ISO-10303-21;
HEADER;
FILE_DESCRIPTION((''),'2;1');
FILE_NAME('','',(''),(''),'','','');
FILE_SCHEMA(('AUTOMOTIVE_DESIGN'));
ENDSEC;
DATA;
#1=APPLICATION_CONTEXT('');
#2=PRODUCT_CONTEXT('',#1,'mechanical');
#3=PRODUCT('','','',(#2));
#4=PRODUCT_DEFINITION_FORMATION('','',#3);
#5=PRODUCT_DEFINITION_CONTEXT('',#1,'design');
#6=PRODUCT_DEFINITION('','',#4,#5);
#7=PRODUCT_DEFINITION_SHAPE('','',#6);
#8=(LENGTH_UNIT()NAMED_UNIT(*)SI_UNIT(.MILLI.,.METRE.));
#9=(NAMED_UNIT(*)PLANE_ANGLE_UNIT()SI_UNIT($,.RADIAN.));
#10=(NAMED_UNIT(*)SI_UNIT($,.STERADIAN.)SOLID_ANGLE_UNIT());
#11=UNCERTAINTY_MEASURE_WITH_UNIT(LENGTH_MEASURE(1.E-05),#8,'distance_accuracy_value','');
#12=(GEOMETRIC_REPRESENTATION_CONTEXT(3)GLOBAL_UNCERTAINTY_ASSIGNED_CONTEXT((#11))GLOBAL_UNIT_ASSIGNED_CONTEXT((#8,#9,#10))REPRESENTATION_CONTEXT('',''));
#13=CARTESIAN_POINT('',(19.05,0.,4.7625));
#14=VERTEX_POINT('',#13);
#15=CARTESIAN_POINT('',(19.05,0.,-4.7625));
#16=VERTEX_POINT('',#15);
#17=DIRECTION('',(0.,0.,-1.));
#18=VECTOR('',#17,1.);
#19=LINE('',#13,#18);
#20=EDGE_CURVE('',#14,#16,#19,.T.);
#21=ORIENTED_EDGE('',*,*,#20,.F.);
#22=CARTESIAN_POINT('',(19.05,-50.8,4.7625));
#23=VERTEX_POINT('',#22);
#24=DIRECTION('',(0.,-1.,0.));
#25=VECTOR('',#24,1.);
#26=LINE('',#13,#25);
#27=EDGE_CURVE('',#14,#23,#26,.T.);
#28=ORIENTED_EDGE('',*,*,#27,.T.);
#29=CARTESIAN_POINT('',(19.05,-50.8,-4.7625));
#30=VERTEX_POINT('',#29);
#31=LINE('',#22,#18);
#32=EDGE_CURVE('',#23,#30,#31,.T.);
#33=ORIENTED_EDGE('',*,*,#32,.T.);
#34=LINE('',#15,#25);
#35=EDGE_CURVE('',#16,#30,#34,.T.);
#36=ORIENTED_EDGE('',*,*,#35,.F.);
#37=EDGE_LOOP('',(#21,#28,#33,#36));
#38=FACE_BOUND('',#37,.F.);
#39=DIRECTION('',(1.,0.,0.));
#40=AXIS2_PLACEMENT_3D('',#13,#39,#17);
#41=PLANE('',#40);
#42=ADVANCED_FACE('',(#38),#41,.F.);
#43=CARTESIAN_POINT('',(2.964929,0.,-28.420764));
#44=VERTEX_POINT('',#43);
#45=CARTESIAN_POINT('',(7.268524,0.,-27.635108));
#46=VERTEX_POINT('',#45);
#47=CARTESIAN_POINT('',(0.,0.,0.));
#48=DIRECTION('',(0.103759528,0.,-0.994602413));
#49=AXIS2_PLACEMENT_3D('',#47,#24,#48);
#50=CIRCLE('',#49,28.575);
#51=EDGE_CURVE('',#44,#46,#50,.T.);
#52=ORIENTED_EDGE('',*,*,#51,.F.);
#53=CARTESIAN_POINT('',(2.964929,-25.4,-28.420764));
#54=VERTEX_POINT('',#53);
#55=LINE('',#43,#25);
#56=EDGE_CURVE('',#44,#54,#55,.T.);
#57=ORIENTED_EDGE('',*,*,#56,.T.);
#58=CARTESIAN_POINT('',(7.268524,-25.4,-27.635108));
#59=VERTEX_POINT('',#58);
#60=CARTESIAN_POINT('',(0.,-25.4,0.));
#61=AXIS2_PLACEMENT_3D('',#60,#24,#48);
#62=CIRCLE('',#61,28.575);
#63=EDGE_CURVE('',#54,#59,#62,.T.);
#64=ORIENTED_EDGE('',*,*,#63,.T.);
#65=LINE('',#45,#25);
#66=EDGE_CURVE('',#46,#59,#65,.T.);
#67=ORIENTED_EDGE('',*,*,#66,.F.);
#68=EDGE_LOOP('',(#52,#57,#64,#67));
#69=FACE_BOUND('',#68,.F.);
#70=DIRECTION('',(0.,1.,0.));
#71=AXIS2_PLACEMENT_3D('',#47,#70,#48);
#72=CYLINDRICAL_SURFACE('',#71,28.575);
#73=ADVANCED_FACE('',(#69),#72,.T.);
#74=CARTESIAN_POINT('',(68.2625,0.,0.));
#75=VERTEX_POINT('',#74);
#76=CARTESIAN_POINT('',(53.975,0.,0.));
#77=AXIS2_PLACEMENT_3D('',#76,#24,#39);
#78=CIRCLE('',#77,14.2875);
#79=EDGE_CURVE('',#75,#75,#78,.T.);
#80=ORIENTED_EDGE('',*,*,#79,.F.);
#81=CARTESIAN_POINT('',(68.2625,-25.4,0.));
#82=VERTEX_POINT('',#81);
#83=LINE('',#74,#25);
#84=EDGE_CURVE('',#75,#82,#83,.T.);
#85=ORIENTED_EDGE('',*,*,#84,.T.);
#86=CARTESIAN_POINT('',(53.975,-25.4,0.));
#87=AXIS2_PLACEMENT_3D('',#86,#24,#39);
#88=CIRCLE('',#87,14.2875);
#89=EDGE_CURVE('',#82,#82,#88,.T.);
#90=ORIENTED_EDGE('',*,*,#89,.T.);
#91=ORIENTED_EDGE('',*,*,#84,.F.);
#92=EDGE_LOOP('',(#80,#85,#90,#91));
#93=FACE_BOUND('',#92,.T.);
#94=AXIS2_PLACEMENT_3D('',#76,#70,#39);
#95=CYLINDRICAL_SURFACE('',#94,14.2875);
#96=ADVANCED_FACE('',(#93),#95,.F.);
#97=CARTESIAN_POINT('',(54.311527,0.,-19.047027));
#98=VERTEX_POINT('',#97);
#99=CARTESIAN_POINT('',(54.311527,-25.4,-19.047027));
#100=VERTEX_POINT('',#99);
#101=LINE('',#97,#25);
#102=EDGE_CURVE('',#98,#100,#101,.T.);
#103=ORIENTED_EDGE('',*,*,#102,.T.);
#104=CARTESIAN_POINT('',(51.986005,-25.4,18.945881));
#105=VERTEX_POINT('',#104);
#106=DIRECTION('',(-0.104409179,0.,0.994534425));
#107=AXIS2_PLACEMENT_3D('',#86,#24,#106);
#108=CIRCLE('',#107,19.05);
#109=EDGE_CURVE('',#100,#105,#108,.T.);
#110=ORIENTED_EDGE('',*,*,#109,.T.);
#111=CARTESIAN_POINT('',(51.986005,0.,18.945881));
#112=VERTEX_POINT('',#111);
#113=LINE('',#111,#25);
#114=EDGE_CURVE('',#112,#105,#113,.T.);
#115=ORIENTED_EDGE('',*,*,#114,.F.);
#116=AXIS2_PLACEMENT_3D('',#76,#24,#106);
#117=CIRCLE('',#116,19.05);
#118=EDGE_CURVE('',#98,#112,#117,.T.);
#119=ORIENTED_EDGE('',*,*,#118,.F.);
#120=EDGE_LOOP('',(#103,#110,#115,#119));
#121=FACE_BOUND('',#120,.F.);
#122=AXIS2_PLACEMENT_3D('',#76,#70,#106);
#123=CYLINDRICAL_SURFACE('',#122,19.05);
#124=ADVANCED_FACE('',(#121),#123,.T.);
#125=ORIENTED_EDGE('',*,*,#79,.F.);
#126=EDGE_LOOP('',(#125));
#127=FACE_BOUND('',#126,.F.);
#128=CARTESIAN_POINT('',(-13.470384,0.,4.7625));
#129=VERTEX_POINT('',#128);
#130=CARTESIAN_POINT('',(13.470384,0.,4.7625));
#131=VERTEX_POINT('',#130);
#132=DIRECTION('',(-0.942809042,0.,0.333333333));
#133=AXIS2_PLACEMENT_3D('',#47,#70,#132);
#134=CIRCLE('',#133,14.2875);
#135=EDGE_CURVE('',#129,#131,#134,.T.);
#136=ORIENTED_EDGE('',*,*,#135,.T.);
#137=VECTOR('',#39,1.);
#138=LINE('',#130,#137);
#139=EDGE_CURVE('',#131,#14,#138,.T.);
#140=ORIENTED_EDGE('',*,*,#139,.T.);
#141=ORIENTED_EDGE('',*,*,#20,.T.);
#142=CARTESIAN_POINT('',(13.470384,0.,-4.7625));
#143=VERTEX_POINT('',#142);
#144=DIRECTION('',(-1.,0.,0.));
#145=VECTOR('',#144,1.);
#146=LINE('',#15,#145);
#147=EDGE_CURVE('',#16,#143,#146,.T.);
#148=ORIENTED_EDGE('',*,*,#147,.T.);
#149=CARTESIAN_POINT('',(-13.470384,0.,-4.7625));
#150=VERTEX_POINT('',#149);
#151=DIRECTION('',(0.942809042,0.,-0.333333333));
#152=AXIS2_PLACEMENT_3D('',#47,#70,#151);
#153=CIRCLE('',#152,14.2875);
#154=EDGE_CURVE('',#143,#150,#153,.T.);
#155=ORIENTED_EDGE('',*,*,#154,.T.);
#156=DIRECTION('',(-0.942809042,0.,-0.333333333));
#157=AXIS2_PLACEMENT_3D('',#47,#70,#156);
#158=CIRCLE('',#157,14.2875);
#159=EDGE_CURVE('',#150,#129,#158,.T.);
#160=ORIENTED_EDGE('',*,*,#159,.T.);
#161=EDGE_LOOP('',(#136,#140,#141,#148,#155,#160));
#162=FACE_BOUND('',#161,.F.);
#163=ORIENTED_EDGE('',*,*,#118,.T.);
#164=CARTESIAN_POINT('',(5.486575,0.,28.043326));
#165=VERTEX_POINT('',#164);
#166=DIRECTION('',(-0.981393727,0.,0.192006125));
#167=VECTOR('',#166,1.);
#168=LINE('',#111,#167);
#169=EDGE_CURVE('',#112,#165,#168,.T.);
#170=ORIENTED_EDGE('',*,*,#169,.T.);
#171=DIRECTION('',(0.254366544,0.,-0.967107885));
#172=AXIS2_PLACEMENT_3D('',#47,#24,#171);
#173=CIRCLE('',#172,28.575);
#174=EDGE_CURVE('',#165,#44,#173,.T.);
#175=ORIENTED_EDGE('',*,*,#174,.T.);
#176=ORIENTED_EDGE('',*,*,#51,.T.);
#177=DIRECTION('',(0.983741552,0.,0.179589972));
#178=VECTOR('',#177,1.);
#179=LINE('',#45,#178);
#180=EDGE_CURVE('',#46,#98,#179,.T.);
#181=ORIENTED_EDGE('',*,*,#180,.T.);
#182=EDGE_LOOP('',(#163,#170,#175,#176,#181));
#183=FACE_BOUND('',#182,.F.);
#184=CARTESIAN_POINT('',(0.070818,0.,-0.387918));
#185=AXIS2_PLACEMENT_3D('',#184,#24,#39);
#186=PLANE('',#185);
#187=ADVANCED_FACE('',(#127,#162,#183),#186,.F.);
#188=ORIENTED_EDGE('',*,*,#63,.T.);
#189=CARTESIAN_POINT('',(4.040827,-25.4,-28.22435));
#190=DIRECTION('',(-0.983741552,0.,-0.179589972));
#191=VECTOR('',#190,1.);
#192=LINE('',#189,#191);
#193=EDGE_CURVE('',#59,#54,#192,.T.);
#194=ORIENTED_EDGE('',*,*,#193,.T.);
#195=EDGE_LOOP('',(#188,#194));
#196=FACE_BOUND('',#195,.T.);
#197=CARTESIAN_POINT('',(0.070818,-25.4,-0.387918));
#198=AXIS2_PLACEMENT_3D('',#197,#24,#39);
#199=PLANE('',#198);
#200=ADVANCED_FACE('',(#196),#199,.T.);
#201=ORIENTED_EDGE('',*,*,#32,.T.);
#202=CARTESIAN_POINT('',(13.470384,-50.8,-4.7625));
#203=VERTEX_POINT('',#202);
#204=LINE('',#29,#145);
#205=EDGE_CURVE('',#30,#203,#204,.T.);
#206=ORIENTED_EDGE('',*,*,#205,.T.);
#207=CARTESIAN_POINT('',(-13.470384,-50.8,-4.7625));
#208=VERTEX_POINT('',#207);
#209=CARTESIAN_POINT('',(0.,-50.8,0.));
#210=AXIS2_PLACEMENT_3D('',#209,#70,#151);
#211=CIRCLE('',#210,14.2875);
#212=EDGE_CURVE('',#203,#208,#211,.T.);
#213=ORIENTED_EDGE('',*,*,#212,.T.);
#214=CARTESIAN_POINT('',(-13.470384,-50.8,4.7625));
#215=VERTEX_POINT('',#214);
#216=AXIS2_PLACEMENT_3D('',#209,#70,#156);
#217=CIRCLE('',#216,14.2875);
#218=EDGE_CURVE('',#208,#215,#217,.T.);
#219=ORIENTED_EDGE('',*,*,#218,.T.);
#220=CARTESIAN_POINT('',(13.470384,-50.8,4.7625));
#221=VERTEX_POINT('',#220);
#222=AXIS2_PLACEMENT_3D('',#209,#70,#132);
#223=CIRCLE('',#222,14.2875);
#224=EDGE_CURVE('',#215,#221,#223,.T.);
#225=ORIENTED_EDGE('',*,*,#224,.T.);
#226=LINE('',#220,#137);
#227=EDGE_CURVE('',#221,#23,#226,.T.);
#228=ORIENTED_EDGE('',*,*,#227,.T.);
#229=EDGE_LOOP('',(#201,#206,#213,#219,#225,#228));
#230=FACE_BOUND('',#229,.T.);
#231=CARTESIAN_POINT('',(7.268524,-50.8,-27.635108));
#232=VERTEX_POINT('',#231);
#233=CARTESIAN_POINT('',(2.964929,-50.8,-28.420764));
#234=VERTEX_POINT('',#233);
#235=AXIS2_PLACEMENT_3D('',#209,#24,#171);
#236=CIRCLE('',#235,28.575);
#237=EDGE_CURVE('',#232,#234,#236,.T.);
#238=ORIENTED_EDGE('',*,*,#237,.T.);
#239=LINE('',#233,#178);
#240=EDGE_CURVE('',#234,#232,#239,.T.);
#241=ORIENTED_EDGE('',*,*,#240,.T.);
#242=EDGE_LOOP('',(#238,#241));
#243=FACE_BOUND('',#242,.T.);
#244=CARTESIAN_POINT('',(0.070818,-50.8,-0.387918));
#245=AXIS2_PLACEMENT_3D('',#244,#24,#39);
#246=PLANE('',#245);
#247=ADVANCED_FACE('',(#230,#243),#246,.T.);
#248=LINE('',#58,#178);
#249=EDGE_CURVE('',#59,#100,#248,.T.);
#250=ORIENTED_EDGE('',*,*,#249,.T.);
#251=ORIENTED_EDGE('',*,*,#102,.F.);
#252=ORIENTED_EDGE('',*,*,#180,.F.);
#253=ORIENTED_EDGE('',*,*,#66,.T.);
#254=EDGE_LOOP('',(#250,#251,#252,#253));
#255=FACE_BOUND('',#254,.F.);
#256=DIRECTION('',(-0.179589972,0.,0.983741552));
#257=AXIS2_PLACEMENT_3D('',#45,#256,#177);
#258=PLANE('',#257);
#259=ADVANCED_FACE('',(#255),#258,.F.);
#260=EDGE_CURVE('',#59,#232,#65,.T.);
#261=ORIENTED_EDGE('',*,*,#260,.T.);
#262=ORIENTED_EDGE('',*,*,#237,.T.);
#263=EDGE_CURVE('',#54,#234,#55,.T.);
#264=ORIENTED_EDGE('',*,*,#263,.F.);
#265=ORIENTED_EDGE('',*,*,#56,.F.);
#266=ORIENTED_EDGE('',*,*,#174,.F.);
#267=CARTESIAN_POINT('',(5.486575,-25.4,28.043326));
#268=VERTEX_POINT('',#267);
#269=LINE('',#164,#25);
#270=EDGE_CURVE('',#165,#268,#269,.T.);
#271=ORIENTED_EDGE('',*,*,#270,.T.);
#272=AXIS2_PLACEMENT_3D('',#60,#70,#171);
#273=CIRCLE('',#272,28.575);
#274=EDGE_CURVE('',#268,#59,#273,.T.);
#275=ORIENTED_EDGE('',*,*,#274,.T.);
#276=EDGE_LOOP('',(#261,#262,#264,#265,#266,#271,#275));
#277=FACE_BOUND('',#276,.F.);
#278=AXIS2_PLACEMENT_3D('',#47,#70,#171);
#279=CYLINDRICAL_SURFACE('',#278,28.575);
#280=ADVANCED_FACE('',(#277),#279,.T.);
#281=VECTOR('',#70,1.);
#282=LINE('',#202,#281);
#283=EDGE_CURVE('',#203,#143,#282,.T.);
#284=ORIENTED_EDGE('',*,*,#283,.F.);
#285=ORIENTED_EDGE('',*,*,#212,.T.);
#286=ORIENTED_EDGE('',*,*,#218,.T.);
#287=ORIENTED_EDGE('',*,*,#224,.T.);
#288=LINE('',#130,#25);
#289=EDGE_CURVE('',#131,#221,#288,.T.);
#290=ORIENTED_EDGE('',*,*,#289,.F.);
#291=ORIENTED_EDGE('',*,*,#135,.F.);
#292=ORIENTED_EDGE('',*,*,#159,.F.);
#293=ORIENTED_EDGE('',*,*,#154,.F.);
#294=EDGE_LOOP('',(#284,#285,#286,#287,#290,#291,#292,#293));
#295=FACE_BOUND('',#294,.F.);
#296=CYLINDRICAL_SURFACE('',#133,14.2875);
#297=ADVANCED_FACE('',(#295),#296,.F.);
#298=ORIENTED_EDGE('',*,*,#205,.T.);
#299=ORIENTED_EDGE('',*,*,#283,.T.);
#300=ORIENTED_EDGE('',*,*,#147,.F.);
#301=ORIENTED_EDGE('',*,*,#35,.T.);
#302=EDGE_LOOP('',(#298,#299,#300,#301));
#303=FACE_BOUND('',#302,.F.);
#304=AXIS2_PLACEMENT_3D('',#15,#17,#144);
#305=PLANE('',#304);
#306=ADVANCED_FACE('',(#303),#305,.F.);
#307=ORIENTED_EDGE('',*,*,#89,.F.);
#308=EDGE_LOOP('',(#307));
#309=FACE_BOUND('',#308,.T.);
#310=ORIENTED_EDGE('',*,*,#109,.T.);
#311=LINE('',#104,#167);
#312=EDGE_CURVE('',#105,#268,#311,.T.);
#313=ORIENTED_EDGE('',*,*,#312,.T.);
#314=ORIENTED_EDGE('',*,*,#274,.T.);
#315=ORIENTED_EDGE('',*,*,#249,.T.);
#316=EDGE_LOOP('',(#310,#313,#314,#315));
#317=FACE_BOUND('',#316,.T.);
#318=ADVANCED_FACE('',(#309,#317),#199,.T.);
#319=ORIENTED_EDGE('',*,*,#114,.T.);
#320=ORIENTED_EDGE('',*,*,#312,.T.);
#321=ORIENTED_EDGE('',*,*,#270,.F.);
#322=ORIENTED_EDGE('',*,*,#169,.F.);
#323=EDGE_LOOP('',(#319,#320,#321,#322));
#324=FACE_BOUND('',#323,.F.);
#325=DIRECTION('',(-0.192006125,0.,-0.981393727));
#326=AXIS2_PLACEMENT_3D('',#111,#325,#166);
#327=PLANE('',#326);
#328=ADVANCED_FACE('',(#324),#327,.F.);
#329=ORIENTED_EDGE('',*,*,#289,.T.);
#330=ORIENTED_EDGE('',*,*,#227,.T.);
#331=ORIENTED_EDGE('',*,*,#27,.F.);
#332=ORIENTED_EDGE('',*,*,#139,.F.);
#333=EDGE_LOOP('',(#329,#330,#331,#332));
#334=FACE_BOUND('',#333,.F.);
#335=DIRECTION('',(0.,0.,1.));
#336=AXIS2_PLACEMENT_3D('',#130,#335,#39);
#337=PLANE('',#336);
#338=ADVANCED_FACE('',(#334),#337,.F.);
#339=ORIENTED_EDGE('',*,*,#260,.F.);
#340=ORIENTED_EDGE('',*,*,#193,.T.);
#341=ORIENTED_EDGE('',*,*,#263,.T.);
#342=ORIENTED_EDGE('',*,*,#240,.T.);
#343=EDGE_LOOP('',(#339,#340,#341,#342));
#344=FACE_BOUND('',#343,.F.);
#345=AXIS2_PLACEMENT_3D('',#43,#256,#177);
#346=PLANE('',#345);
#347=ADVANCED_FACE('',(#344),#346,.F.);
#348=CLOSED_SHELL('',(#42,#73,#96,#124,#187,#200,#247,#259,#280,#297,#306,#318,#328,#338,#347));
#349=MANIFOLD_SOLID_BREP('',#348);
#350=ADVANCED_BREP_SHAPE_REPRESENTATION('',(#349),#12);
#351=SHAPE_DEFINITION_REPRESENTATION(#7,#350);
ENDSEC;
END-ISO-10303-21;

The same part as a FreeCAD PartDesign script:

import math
import FreeCAD as App
import Part
import Sketcher

V = App.Vector
Q = App.Units.Quantity

doc = App.newDocument("Part")
params = doc.addObject("Spreadsheet::Sheet", "Params")
for row, (alias, value) in enumerate([
    ("sketch1_radius", "0.75 in"),
    ("sketch1_diameter", "1.125 in"),
    ("sketch1_radius2", "1.125 in"),
    ("sketch1_height", "0.375 in"),
    ("pad1_length", "1 in"),
    ("sketch2_radius", "1.125 in"),
    ("sketch2_radius2", "0.5625 in"),
    ("sketch2_height", "0.375 in"),
    ("pad2_length", "2 in"),
], start=1):
    params.set(f"A{row}", alias)
    params.set(f"B{row}", "=" + value)
    params.setAlias(f"B{row}", alias)

body = doc.addObject("PartDesign::Body", "Body")

# Sketch on XZ plane
sketch1 = body.newObject("Sketcher::SketchObject", "Sketch")
sketch1.AttachmentSupport = (doc.getObject("XZ_Plane"), [""])
sketch1.MapMode = "FlatFace"
sketch1.addGeometry(Part.ArcOfCircle(Part.Circle(V(0, 0, 0), V(0, 0, 1), 28.575), math.radians(78.930117), math.radians(275.955702)), False)
sketch1.addGeometry(Part.ArcOfCircle(Part.Circle(V(0, 0, 0), V(0, 0, 1), 28.575), math.radians(-84.044298), math.radians(-75.263947)), False)
sketch1.addGeometry(Part.LineSegment(V(7.268524, -27.635108, 0), V(54.311527, -19.047027, 0)), False)
sketch1.addGeometry(Part.ArcOfCircle(Part.Circle(V(53.975, 0, 0), V(0, 0, 1), 19.05), math.radians(-88.98779), math.radians(95.993128)), False)
sketch1.addGeometry(Part.LineSegment(V(51.986005, 18.945881, 0), V(5.486575, 28.043326, 0)), False)
sketch1.addGeometry(Part.Circle(V(53.975, 0, 0), V(0, 0, 1), 14.2875), False)
sketch1.addGeometry(Part.LineSegment(V(-19.05, 4.7625, 0), V(-13.470384, 4.7625, 0)), False)
sketch1.addGeometry(Part.ArcOfCircle(Part.Circle(V(0, 0, 0), V(0, 0, 1), 14.2875), math.radians(19.471221), math.radians(160.528779)), False)
sketch1.addGeometry(Part.LineSegment(V(13.470384, 4.7625, 0), V(19.05, 4.7625, 0)), False)
sketch1.addGeometry(Part.LineSegment(V(19.05, 4.7625, 0), V(19.05, -4.7625, 0)), False)
sketch1.addGeometry(Part.LineSegment(V(19.05, -4.7625, 0), V(13.470384, -4.7625, 0)), False)
sketch1.addGeometry(Part.ArcOfCircle(Part.Circle(V(0, 0, 0), V(0, 0, 1), 14.2875), math.radians(-160.528779), math.radians(-19.471221)), False)
sketch1.addGeometry(Part.LineSegment(V(-13.470384, -4.7625, 0), V(-19.05, -4.7625, 0)), False)
sketch1.addGeometry(Part.LineSegment(V(-19.05, -4.7625, 0), V(-19.05, 4.7625, 0)), False)
sketch1.addConstraint(Sketcher.Constraint("Tangent", 0, 2, 1, 1))
sketch1.addConstraint(Sketcher.Constraint("Coincident", 1, 2, 2, 1))
sketch1.addConstraint(Sketcher.Constraint("Coincident", 2, 2, 3, 1))
sketch1.addConstraint(Sketcher.Constraint("Coincident", 3, 2, 4, 1))
sketch1.addConstraint(Sketcher.Constraint("Tangent", 4, 2, 0, 1))
sketch1.addConstraint(Sketcher.Constraint("Coincident", 6, 2, 7, 2))
sketch1.addConstraint(Sketcher.Constraint("Coincident", 7, 1, 8, 1))
sketch1.addConstraint(Sketcher.Constraint("Coincident", 8, 2, 9, 1))
sketch1.addConstraint(Sketcher.Constraint("Coincident", 9, 2, 10, 1))
sketch1.addConstraint(Sketcher.Constraint("Coincident", 10, 2, 11, 2))
sketch1.addConstraint(Sketcher.Constraint("Coincident", 11, 1, 12, 1))
sketch1.addConstraint(Sketcher.Constraint("Coincident", 12, 2, 13, 1))
sketch1.addConstraint(Sketcher.Constraint("Coincident", 13, 2, 6, 1))
sketch1.addConstraint(Sketcher.Constraint("Horizontal", 6))
sketch1.addConstraint(Sketcher.Constraint("Horizontal", 8))
sketch1.addConstraint(Sketcher.Constraint("Vertical", 9))
sketch1.addConstraint(Sketcher.Constraint("Horizontal", 10))
sketch1.addConstraint(Sketcher.Constraint("Horizontal", 12))
sketch1.addConstraint(Sketcher.Constraint("Vertical", 13))
sketch1.addConstraint(Sketcher.Constraint("Coincident", 0, 3, -1, 1))
sketch1.addConstraint(Sketcher.Constraint("Coincident", 7, 3, -1, 1))
sketch1.addConstraint(Sketcher.Constraint("Coincident", 11, 3, -1, 1))
sketch1.addConstraint(Sketcher.Constraint("Coincident", 5, 3, 3, 3))
sketch1.addConstraint(Sketcher.Constraint("Equal", 0, 1))
sketch1.addConstraint(Sketcher.Constraint("Equal", 5, 7))
sketch1.addConstraint(Sketcher.Constraint("Equal", 7, 11))
sketch1.addConstraint(Sketcher.Constraint("Symmetric", 8, 2, 12, 2, -1, 1))
sketch1.addConstraint(Sketcher.Constraint("PointOnObject", 3, 3, -1))
sketch1.addConstraint(Sketcher.Constraint("Horizontal", 6, 2, 7, 1))
sketch1.addConstraint(Sketcher.Constraint("Horizontal", 10, 2, 11, 1))
sketch1.addConstraint(Sketcher.Constraint("Radius", 3, Q("0.75 in")))
sketch1.addConstraint(Sketcher.Constraint("Diameter", 5, Q("1.125 in")))
sketch1.addConstraint(Sketcher.Constraint("Radius", 0, Q("1.125 in")))
sketch1.addConstraint(Sketcher.Constraint("DistanceY", 9, 2, 9, 1, Q("0.375 in")))
sketch1.addConstraint(Sketcher.Constraint("DistanceX", -1, 1, 8, 2, Q("0.75 in")))
sketch1.addConstraint(Sketcher.Constraint("DistanceX", -1, 1, 3, 3, Q("2.125 in")))
sketch1.addConstraint(Sketcher.Constraint("DistanceX", 0, 2, 2, 2, 51.346599))
sketch1.addConstraint(Sketcher.Constraint("Distance", 2, 47.82049))
sketch1.addConstraint(Sketcher.Constraint("DistanceX", -1, 1, 0, 2, 2.964929))
sketch1.addConstraint(Sketcher.Constraint("DistanceY", -1, 1, 3, 2, 18.945881))
sketch1.setExpression("Constraints[30]", "Params.sketch1_radius")
sketch1.setExpression("Constraints[31]", "Params.sketch1_diameter")
sketch1.setExpression("Constraints[32]", "Params.sketch1_radius2")
sketch1.setExpression("Constraints[33]", "Params.sketch1_height")
pad1 = body.newObject("PartDesign::Pad", "Pad")
pad1.Profile = sketch1
pad1.setExpression("Length", "Params.pad1_length")

# Sketch on XZ plane
sketch2 = body.newObject("Sketcher::SketchObject", "Sketch001")
sketch2.AttachmentSupport = (doc.getObject("XZ_Plane"), [""])
sketch2.MapMode = "FlatFace"
sketch2.addGeometry(Part.ArcOfCircle(Part.Circle(V(0, 0, 0), V(0, 0, 1), 28.575), math.radians(-75.263947), math.radians(275.955702)), False)
sketch2.addGeometry(Part.LineSegment(V(2.964929, -28.420764, 0), V(7.268524, -27.635108, 0)), False)
sketch2.addGeometry(Part.ArcOfCircle(Part.Circle(V(0, 0, 0), V(0, 0, 1), 14.2875), math.radians(-160.528779), math.radians(-19.471221)), False)
sketch2.addGeometry(Part.ArcOfCircle(Part.Circle(V(0, 0, 0), V(0, 0, 1), 14.2875), math.radians(160.528779), math.radians(199.471221)), False)
sketch2.addGeometry(Part.ArcOfCircle(Part.Circle(V(0, 0, 0), V(0, 0, 1), 14.2875), math.radians(19.471221), math.radians(160.528779)), False)
sketch2.addGeometry(Part.LineSegment(V(13.470384, 4.7625, 0), V(19.05, 4.7625, 0)), False)
sketch2.addGeometry(Part.LineSegment(V(19.05, 4.7625, 0), V(19.05, -4.7625, 0)), False)
sketch2.addGeometry(Part.LineSegment(V(19.05, -4.7625, 0), V(13.470384, -4.7625, 0)), False)
sketch2.addConstraint(Sketcher.Constraint("Coincident", 0, 1, 1, 2))
sketch2.addConstraint(Sketcher.Constraint("Coincident", 1, 1, 0, 2))
sketch2.addConstraint(Sketcher.Constraint("Tangent", 2, 1, 3, 2))
sketch2.addConstraint(Sketcher.Constraint("Tangent", 3, 1, 4, 2))
sketch2.addConstraint(Sketcher.Constraint("Coincident", 4, 1, 5, 1))
sketch2.addConstraint(Sketcher.Constraint("Coincident", 5, 2, 6, 1))
sketch2.addConstraint(Sketcher.Constraint("Coincident", 6, 2, 7, 1))
sketch2.addConstraint(Sketcher.Constraint("Coincident", 7, 2, 2, 2))
sketch2.addConstraint(Sketcher.Constraint("Horizontal", 5))
sketch2.addConstraint(Sketcher.Constraint("Vertical", 6))
sketch2.addConstraint(Sketcher.Constraint("Horizontal", 7))
sketch2.addConstraint(Sketcher.Constraint("Coincident", 0, 3, -1, 1))
sketch2.addConstraint(Sketcher.Constraint("Coincident", 2, 3, -1, 1))
sketch2.addConstraint(Sketcher.Constraint("Coincident", 4, 3, -1, 1))
sketch2.addConstraint(Sketcher.Constraint("Horizontal", 3, 1, 4, 1))
sketch2.addConstraint(Sketcher.Constraint("Horizontal", 2, 1, 6, 2))
sketch2.addConstraint(Sketcher.Constraint("Vertical", 2, 1, 3, 1))
sketch2.addConstraint(Sketcher.Constraint("Radius", 0, Q("1.125 in")))
sketch2.addConstraint(Sketcher.Constraint("Radius", 2, Q("0.5625 in")))
sketch2.addConstraint(Sketcher.Constraint("DistanceY", 6, 2, 6, 1, Q("0.375 in")))
sketch2.addConstraint(Sketcher.Constraint("DistanceX", -1, 1, 5, 2, Q("0.75 in")))
sketch2.addConstraint(Sketcher.Constraint("Distance", 1, 4.374722))
sketch2.addConstraint(Sketcher.Constraint("DistanceX", -1, 1, 1, 1, 2.964929))
sketch2.setExpression("Constraints[17]", "Params.sketch2_radius")
sketch2.setExpression("Constraints[18]", "Params.sketch2_radius2")
sketch2.setExpression("Constraints[19]", "Params.sketch2_height")
pad2 = body.newObject("PartDesign::Pad", "Pad001")
pad2.Profile = sketch2
pad2.setExpression("Length", "Params.pad2_length")

doc.recompute()
